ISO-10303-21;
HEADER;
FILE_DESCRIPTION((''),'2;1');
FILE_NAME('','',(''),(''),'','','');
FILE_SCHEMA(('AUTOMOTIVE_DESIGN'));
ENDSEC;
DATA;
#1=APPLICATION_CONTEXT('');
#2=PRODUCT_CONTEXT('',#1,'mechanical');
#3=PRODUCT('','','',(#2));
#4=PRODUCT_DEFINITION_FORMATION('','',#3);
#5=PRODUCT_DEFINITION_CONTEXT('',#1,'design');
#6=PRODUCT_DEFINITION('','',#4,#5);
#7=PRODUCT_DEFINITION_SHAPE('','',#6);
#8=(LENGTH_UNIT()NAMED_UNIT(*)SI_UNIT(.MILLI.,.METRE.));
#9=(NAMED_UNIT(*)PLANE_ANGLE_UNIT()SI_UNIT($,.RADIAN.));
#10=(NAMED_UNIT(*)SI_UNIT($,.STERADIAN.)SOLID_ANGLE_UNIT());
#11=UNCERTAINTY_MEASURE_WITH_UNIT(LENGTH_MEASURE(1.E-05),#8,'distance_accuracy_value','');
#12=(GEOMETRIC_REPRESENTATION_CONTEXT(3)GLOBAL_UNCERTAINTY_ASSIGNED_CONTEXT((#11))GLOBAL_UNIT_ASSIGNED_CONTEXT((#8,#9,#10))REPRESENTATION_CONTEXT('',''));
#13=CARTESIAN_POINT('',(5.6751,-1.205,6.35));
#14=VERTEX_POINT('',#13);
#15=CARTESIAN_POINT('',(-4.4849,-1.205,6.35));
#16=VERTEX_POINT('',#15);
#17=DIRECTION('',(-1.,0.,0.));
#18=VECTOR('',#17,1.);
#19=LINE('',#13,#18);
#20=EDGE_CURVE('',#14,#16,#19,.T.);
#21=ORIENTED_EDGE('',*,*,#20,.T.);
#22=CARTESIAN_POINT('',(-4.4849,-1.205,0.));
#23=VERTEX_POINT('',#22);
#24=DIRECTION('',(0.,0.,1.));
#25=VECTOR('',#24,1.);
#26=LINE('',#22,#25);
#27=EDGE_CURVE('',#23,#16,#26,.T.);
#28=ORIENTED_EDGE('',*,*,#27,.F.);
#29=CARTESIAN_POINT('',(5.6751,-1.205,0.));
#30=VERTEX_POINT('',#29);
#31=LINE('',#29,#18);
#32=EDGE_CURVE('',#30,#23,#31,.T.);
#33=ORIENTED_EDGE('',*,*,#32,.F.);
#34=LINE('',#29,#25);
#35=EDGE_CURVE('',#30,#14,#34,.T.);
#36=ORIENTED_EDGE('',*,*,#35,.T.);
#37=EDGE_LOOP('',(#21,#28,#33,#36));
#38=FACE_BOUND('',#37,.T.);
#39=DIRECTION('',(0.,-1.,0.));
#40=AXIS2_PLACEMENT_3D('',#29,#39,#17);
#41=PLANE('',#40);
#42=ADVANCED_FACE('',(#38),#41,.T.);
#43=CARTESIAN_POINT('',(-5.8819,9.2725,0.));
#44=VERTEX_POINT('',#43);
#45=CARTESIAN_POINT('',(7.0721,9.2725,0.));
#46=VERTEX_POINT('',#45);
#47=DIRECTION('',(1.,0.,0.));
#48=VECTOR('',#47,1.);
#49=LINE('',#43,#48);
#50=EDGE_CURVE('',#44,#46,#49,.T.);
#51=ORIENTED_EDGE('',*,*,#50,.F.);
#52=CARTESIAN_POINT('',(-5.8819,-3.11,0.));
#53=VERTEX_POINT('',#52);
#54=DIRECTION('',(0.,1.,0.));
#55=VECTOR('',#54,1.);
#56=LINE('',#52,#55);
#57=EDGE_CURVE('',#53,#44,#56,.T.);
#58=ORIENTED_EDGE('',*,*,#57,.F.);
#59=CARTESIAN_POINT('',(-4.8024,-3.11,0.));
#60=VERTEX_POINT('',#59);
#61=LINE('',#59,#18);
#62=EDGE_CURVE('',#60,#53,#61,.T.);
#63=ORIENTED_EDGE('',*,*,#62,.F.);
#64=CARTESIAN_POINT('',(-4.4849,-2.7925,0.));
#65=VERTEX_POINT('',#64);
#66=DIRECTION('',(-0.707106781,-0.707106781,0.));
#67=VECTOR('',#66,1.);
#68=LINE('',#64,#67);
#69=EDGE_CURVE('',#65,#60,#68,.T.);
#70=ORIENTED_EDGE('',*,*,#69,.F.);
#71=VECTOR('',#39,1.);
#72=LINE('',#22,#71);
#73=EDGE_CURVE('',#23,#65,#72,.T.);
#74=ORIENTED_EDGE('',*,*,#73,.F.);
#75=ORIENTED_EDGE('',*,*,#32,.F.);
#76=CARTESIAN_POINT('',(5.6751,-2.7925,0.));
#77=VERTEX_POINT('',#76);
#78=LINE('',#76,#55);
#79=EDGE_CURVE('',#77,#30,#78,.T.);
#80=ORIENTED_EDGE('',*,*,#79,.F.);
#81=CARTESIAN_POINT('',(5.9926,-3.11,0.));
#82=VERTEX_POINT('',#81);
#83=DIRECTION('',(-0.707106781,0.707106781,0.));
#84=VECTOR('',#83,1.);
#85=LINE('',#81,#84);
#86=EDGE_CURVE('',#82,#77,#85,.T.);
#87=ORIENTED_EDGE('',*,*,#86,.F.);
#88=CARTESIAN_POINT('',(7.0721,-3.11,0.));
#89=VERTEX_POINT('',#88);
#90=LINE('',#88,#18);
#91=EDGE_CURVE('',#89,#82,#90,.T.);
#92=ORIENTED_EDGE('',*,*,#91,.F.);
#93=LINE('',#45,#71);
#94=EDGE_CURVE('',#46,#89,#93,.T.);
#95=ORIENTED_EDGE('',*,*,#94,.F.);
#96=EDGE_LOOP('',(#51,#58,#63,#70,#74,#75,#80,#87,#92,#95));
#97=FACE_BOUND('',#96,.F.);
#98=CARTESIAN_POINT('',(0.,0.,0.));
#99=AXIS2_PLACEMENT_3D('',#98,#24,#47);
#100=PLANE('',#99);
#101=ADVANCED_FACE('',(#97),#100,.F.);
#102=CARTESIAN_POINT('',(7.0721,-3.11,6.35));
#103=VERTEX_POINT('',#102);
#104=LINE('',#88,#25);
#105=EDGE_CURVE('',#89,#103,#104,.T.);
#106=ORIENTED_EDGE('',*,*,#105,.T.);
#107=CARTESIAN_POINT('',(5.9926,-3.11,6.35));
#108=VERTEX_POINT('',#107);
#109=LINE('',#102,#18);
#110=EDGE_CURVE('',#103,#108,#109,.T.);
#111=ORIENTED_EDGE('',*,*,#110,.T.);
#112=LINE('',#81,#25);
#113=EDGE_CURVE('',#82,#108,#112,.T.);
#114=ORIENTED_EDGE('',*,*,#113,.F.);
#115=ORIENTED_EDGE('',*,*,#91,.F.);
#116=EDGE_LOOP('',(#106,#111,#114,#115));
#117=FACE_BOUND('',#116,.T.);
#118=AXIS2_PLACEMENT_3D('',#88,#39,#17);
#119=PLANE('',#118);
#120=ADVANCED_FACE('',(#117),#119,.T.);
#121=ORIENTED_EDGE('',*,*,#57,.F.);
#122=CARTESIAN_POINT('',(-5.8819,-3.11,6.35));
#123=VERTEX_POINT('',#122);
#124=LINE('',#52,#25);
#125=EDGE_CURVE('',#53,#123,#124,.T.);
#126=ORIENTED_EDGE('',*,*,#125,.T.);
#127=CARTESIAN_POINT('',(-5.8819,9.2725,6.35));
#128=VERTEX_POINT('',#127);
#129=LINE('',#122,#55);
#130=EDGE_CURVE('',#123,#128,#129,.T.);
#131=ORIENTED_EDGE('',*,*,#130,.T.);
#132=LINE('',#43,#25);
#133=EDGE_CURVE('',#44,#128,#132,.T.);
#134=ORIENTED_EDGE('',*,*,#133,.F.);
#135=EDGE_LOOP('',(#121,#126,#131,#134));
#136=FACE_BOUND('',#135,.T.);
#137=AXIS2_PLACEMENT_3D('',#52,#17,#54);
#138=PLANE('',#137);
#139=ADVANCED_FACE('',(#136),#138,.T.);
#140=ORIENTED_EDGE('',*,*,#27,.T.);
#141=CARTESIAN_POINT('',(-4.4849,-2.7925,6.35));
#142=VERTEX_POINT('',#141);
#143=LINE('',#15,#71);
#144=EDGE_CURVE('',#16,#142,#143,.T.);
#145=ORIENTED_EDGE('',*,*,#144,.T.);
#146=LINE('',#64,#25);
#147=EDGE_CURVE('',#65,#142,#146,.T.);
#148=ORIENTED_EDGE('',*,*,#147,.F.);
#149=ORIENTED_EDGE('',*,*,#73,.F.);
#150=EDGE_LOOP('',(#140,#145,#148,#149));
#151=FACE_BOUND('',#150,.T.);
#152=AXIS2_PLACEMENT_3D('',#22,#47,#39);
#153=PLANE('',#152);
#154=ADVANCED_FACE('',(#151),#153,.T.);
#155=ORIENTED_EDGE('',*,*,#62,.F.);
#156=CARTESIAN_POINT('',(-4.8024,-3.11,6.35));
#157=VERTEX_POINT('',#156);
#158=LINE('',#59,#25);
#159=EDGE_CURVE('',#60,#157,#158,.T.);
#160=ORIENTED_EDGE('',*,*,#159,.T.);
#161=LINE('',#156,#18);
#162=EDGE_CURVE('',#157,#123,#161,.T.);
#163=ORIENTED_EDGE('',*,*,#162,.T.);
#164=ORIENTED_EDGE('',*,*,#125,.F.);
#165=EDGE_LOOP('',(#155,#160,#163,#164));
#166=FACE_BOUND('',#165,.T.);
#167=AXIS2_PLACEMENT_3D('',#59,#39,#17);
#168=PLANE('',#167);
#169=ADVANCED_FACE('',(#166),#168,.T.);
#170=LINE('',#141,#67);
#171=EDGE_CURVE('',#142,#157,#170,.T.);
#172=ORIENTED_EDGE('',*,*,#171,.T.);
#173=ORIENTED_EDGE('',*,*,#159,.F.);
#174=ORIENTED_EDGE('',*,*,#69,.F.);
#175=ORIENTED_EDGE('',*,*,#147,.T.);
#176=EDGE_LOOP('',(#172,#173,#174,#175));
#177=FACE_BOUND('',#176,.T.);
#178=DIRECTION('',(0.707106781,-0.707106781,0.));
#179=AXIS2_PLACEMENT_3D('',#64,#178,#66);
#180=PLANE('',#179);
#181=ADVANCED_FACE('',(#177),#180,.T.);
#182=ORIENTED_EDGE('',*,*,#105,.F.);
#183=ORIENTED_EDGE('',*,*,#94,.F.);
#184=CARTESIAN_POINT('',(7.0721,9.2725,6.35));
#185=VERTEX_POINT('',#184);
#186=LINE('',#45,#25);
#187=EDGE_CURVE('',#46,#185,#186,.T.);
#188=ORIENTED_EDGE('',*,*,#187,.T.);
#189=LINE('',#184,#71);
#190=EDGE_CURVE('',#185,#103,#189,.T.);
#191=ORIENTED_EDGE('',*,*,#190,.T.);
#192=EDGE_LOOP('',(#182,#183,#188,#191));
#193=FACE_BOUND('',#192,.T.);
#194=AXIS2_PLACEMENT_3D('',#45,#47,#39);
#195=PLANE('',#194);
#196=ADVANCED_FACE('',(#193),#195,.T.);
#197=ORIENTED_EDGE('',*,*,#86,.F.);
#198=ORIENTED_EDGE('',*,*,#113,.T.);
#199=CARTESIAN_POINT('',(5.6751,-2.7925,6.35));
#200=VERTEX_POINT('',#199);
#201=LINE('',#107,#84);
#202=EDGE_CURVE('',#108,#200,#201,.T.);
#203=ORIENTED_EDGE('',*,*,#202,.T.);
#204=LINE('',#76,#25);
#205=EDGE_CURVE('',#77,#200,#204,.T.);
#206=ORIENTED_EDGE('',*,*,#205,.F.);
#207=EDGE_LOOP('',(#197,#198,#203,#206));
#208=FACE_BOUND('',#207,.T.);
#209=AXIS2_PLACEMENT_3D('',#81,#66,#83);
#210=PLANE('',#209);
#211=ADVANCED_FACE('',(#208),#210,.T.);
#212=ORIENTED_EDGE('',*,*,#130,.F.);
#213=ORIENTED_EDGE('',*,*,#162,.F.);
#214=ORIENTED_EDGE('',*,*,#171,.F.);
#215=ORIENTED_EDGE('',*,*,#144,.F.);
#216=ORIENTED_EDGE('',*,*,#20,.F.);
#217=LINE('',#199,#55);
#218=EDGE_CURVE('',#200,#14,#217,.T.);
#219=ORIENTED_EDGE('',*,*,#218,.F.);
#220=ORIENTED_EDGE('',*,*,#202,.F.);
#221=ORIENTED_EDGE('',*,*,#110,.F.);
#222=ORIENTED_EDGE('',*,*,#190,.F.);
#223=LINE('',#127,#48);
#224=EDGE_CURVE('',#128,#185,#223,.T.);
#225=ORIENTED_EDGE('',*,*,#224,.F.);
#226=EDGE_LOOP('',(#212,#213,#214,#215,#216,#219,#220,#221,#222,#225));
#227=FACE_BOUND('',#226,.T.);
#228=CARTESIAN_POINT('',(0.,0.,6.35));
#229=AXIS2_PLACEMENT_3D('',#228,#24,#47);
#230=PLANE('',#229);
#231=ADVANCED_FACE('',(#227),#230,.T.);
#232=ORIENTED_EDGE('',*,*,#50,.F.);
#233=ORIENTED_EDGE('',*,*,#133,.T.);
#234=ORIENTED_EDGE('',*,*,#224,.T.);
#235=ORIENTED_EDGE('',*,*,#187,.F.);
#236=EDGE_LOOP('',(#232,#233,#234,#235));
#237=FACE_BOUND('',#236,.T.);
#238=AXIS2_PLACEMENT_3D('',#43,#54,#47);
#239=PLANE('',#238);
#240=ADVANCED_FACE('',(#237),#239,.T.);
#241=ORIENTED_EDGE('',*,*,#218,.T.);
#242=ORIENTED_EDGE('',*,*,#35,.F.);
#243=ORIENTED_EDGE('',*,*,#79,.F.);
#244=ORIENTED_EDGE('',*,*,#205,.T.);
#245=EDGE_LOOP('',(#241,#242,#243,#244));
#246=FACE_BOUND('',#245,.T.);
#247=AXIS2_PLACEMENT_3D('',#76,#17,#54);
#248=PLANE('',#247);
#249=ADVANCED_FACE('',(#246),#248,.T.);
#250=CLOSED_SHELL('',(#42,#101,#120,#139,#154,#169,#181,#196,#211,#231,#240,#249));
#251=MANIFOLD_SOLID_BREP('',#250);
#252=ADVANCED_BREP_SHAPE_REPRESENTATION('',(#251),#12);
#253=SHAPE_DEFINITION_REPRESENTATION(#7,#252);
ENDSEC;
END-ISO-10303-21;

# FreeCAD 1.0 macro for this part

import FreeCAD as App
import Part
import Sketcher

V = App.Vector
Q = App.Units.Quantity

doc = App.newDocument("Part")
body = doc.addObject("PartDesign::Body", "Body")

# Sketch on XY plane
sketch1 = body.newObject("Sketcher::SketchObject", "Sketch")
sketch1.AttachmentSupport = (doc.getObject("XY_Plane"), [""])
sketch1.MapMode = "FlatFace"
sketch1.addGeometry([
    Part.LineSegment(V(7.0721, 9.2725, 0), V(-5.8819, 9.2725, 0)),  # 0
    Part.LineSegment(V(-5.8819, 9.2725, 0), V(-5.8819, -3.11, 0)),  # 1
    Part.LineSegment(V(-5.8819, -3.11, 0), V(-4.8024, -3.11, 0)),  # 2
    Part.LineSegment(V(-4.8024, -3.11, 0), V(-4.4849, -2.7925, 0)),  # 3
    Part.LineSegment(V(-4.4849, -2.7925, 0), V(-4.4849, -1.205, 0)),  # 4
    Part.LineSegment(V(-4.4849, -1.205, 0), V(5.6751, -1.205, 0)),  # 5
    Part.LineSegment(V(5.6751, -1.205, 0), V(5.6751, -2.7925, 0)),  # 6
    Part.LineSegment(V(5.6751, -2.7925, 0), V(5.9926, -3.11, 0)),  # 7
    Part.LineSegment(V(5.9926, -3.11, 0), V(7.0721, -3.11, 0)),  # 8
    Part.LineSegment(V(7.0721, -3.11, 0), V(7.0721, 9.2725, 0)),  # 9
], False)
sketch1.addConstraint([
    Sketcher.Constraint("Coincident", 0, 2, 1, 1),
    Sketcher.Constraint("Coincident", 1, 2, 2, 1),
    Sketcher.Constraint("Coincident", 2, 2, 3, 1),
    Sketcher.Constraint("Coincident", 3, 2, 4, 1),
    Sketcher.Constraint("Coincident", 4, 2, 5, 1),
    Sketcher.Constraint("Coincident", 5, 2, 6, 1),
    Sketcher.Constraint("Coincident", 6, 2, 7, 1),
    Sketcher.Constraint("Coincident", 7, 2, 8, 1),
    Sketcher.Constraint("Coincident", 8, 2, 9, 1),
    Sketcher.Constraint("Coincident", 9, 2, 0, 1),
    Sketcher.Constraint("Horizontal", 0),
    Sketcher.Constraint("Vertical", 1),
    Sketcher.Constraint("Horizontal", 2),
    Sketcher.Constraint("Vertical", 4),
    Sketcher.Constraint("Horizontal", 5),
    Sketcher.Constraint("Vertical", 6),
    Sketcher.Constraint("Horizontal", 8),
    Sketcher.Constraint("Vertical", 9),
    Sketcher.Constraint("Perpendicular", 3, 7),
    Sketcher.Constraint("Horizontal", 3, 2, 6, 2),
    Sketcher.Constraint("Horizontal", 2, 2, 7, 2),
    Sketcher.Constraint("Equal", 2, 8),
    Sketcher.Constraint("Equal", 3, 7),
    Sketcher.Constraint("DistanceX", 5, 1, 5, 2, Q("0.4 in")),
    Sketcher.Constraint("DistanceX", 0, 2, 0, 1, Q("0.51 in")),
    Sketcher.Constraint("DistanceY", 4, 1, 4, 2, Q("0.0625 in")),
    Sketcher.Constraint("DistanceX", 2, 1, 2, 2, Q("0.0425 in")),
    Sketcher.Constraint("DistanceY", 1, 2, 1, 1, Q("0.4875 in")),
    Sketcher.Constraint("DistanceX", 0, 2, -1, 1, 5.882),
    Sketcher.Constraint("DistanceY", -1, 1, 0, 2, 9.2725),
])
pad1 = body.newObject("PartDesign::Pad", "Pad")
pad1.Profile = sketch1
pad1.Length = Q("0.25 in")

doc.recompute()
